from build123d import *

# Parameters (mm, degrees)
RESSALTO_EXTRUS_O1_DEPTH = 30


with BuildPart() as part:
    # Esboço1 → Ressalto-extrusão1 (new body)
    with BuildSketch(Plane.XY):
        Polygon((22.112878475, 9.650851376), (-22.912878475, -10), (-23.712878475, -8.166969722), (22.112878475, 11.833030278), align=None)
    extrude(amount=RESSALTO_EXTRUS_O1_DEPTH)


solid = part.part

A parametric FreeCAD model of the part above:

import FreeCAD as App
import Part
import Sketcher
from FreeCAD import Vector
Q = App.Units.Quantity

doc = App.newDocument("Part")
body = doc.addObject("PartDesign::Body", "Body")

# Sketch on XY plane
sketch1 = body.newObject("Sketcher::SketchObject", "Sketch")
sketch1.AttachmentSupport = (doc.getObject("XY_Plane"), [""])
sketch1.MapMode = "FlatFace"
sketch1.addGeometry([
    Part.LineSegment(Vector(-22.912878, -10, 0), Vector(22.112878, 9.650851, 0)),
    Part.LineSegment(Vector(22.112878, 9.650851, 0), Vector(22.112878, 11.83303, 0)),
    Part.LineSegment(Vector(22.112878, 11.83303, 0), Vector(-23.712878, -8.16697, 0)),
    Part.LineSegment(Vector(-23.712878, -8.16697, 0), Vector(-22.912878, -10, 0)),
], False)
sketch1.addConstraint([
    Sketcher.Constraint("Coincident", 0, 2, 1, 1),
    Sketcher.Constraint("Coincident", 1, 2, 2, 1),
    Sketcher.Constraint("Coincident", 2, 2, 3, 1),
    Sketcher.Constraint("Coincident", 3, 2, 0, 1),
    Sketcher.Constraint("Vertical", 1),
    Sketcher.Constraint("Parallel", 0, 2),
    Sketcher.Constraint("Perpendicular", 2, 3),
    Sketcher.Constraint("Distance", 2, Q("50 mm")),
    Sketcher.Constraint("Distance", 3, Q("2 mm")),
    Sketcher.Constraint("DistanceY", 3, 2, -1, 1, Q("10 mm")),
    Sketcher.Constraint("DistanceY", 2, 2, 1, 2, Q("20 mm")),
    Sketcher.Constraint("DistanceX", -1, 1, 0, 2, Q("22.112878 mm")),
])
pad1 = body.newObject("PartDesign::Pad", "Pad")
pad1.Profile = sketch1
pad1.Length = 30

doc.recompute()
